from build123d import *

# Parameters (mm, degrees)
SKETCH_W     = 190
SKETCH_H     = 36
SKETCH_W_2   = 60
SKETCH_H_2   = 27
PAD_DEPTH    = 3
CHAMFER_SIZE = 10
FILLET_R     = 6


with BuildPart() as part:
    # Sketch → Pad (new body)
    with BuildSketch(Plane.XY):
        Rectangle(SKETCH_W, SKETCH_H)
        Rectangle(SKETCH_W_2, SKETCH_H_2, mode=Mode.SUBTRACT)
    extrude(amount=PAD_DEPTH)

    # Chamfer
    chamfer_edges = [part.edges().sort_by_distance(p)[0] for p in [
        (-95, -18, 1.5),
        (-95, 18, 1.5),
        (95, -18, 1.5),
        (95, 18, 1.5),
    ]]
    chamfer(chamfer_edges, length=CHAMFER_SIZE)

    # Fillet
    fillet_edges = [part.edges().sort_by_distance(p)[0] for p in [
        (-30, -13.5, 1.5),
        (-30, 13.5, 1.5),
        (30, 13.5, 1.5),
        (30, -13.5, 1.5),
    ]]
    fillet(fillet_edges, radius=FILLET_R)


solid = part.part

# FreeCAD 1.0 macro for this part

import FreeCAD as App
import Part
import Sketcher

V = App.Vector


def edges_at(feature, points):
    """Names of the edges that pass closest to the given points."""
    edges = feature.Shape.Edges
    near = lambda p: min(range(len(edges)), key=lambda i: edges[i].distToShape(Part.Vertex(*p))[0])
    return sorted({f"Edge{near(p) + 1}" for p in points})

doc = App.newDocument("Part")
body = doc.addObject("PartDesign::Body", "Body")

sketch1 = body.newObject("Sketcher::SketchObject", "Sketch")
sketch1.AttachmentSupport = (doc.getObject("XY_Plane"), [""])
sketch1.MapMode = "FlatFace"
sketch1.addGeometry([
    Part.LineSegment(V(-95, 18, 0), V(-95, -18, 0)),
    Part.LineSegment(V(-95, -18, 0), V(95, -18, 0)),
    Part.LineSegment(V(95, -18, 0), V(95, 18, 0)),
    Part.LineSegment(V(95, 18, 0), V(-95, 18, 0)),
    Part.LineSegment(V(30, -14, 0), V(-30, -14, 0)),
    Part.LineSegment(V(-30, -14, 0), V(-30, 14, 0)),
    Part.LineSegment(V(-30, 14, 0), V(30, 14, 0)),
    Part.LineSegment(V(30, 14, 0), V(30, -14, 0)),
], False)
sketch1.addConstraint([
    Sketcher.Constraint("Coincident", 0, 2, 1, 1),
    Sketcher.Constraint("Coincident", 1, 2, 2, 1),
    Sketcher.Constraint("Coincident", 2, 2, 3, 1),
    Sketcher.Constraint("Coincident", 3, 2, 0, 1),
    Sketcher.Constraint("Coincident", 4, 2, 5, 1),
    Sketcher.Constraint("Coincident", 5, 2, 6, 1),
    Sketcher.Constraint("Coincident", 6, 2, 7, 1),
    Sketcher.Constraint("Coincident", 7, 2, 4, 1),
    Sketcher.Constraint("Vertical", 0),
    Sketcher.Constraint("Horizontal", 1),
    Sketcher.Constraint("Vertical", 2),
    Sketcher.Constraint("Horizontal", 3),
    Sketcher.Constraint("Horizontal", 4),
    Sketcher.Constraint("Vertical", 5),
    Sketcher.Constraint("Horizontal", 6),
    Sketcher.Constraint("Vertical", 7),
    Sketcher.Constraint("Symmetric", 0, 2, 2, 2, -1, 1),
    Sketcher.Constraint("Symmetric", 4, 2, 6, 2, -1, 1),
    Sketcher.Constraint("DistanceX", 1, 1, 1, 2, 190.0),
    Sketcher.Constraint("DistanceX", 4, 2, 4, 1, 60.0),
    Sketcher.Constraint("DistanceY", 0, 2, 0, 1, 36.0),
    Sketcher.Constraint("DistanceY", 5, 1, 5, 2, 27.0),
])
pad1 = body.newObject("PartDesign::Pad", "Pad")
pad1.Profile = sketch1
pad1.Length = 3
doc.recompute()

chamfer = body.newObject("PartDesign::Chamfer", "Chamfer")
chamfer.Base = (pad1, edges_at(pad1, [
    (-95, -18, 1.5),
    (-95, 18, 1.5),
    (95, -18, 1.5),
    (95, 18, 1.5),
]))
chamfer.Size = 10
doc.recompute()

fillet = body.newObject("PartDesign::Fillet", "Fillet")
fillet.Base = (chamfer, edges_at(chamfer, [
    (-30, -13.5, 1.5),
    (-30, 13.5, 1.5),
    (30, 13.5, 1.5),
    (30, -13.5, 1.5),
]))
fillet.Radius = 6

doc.recompute()
